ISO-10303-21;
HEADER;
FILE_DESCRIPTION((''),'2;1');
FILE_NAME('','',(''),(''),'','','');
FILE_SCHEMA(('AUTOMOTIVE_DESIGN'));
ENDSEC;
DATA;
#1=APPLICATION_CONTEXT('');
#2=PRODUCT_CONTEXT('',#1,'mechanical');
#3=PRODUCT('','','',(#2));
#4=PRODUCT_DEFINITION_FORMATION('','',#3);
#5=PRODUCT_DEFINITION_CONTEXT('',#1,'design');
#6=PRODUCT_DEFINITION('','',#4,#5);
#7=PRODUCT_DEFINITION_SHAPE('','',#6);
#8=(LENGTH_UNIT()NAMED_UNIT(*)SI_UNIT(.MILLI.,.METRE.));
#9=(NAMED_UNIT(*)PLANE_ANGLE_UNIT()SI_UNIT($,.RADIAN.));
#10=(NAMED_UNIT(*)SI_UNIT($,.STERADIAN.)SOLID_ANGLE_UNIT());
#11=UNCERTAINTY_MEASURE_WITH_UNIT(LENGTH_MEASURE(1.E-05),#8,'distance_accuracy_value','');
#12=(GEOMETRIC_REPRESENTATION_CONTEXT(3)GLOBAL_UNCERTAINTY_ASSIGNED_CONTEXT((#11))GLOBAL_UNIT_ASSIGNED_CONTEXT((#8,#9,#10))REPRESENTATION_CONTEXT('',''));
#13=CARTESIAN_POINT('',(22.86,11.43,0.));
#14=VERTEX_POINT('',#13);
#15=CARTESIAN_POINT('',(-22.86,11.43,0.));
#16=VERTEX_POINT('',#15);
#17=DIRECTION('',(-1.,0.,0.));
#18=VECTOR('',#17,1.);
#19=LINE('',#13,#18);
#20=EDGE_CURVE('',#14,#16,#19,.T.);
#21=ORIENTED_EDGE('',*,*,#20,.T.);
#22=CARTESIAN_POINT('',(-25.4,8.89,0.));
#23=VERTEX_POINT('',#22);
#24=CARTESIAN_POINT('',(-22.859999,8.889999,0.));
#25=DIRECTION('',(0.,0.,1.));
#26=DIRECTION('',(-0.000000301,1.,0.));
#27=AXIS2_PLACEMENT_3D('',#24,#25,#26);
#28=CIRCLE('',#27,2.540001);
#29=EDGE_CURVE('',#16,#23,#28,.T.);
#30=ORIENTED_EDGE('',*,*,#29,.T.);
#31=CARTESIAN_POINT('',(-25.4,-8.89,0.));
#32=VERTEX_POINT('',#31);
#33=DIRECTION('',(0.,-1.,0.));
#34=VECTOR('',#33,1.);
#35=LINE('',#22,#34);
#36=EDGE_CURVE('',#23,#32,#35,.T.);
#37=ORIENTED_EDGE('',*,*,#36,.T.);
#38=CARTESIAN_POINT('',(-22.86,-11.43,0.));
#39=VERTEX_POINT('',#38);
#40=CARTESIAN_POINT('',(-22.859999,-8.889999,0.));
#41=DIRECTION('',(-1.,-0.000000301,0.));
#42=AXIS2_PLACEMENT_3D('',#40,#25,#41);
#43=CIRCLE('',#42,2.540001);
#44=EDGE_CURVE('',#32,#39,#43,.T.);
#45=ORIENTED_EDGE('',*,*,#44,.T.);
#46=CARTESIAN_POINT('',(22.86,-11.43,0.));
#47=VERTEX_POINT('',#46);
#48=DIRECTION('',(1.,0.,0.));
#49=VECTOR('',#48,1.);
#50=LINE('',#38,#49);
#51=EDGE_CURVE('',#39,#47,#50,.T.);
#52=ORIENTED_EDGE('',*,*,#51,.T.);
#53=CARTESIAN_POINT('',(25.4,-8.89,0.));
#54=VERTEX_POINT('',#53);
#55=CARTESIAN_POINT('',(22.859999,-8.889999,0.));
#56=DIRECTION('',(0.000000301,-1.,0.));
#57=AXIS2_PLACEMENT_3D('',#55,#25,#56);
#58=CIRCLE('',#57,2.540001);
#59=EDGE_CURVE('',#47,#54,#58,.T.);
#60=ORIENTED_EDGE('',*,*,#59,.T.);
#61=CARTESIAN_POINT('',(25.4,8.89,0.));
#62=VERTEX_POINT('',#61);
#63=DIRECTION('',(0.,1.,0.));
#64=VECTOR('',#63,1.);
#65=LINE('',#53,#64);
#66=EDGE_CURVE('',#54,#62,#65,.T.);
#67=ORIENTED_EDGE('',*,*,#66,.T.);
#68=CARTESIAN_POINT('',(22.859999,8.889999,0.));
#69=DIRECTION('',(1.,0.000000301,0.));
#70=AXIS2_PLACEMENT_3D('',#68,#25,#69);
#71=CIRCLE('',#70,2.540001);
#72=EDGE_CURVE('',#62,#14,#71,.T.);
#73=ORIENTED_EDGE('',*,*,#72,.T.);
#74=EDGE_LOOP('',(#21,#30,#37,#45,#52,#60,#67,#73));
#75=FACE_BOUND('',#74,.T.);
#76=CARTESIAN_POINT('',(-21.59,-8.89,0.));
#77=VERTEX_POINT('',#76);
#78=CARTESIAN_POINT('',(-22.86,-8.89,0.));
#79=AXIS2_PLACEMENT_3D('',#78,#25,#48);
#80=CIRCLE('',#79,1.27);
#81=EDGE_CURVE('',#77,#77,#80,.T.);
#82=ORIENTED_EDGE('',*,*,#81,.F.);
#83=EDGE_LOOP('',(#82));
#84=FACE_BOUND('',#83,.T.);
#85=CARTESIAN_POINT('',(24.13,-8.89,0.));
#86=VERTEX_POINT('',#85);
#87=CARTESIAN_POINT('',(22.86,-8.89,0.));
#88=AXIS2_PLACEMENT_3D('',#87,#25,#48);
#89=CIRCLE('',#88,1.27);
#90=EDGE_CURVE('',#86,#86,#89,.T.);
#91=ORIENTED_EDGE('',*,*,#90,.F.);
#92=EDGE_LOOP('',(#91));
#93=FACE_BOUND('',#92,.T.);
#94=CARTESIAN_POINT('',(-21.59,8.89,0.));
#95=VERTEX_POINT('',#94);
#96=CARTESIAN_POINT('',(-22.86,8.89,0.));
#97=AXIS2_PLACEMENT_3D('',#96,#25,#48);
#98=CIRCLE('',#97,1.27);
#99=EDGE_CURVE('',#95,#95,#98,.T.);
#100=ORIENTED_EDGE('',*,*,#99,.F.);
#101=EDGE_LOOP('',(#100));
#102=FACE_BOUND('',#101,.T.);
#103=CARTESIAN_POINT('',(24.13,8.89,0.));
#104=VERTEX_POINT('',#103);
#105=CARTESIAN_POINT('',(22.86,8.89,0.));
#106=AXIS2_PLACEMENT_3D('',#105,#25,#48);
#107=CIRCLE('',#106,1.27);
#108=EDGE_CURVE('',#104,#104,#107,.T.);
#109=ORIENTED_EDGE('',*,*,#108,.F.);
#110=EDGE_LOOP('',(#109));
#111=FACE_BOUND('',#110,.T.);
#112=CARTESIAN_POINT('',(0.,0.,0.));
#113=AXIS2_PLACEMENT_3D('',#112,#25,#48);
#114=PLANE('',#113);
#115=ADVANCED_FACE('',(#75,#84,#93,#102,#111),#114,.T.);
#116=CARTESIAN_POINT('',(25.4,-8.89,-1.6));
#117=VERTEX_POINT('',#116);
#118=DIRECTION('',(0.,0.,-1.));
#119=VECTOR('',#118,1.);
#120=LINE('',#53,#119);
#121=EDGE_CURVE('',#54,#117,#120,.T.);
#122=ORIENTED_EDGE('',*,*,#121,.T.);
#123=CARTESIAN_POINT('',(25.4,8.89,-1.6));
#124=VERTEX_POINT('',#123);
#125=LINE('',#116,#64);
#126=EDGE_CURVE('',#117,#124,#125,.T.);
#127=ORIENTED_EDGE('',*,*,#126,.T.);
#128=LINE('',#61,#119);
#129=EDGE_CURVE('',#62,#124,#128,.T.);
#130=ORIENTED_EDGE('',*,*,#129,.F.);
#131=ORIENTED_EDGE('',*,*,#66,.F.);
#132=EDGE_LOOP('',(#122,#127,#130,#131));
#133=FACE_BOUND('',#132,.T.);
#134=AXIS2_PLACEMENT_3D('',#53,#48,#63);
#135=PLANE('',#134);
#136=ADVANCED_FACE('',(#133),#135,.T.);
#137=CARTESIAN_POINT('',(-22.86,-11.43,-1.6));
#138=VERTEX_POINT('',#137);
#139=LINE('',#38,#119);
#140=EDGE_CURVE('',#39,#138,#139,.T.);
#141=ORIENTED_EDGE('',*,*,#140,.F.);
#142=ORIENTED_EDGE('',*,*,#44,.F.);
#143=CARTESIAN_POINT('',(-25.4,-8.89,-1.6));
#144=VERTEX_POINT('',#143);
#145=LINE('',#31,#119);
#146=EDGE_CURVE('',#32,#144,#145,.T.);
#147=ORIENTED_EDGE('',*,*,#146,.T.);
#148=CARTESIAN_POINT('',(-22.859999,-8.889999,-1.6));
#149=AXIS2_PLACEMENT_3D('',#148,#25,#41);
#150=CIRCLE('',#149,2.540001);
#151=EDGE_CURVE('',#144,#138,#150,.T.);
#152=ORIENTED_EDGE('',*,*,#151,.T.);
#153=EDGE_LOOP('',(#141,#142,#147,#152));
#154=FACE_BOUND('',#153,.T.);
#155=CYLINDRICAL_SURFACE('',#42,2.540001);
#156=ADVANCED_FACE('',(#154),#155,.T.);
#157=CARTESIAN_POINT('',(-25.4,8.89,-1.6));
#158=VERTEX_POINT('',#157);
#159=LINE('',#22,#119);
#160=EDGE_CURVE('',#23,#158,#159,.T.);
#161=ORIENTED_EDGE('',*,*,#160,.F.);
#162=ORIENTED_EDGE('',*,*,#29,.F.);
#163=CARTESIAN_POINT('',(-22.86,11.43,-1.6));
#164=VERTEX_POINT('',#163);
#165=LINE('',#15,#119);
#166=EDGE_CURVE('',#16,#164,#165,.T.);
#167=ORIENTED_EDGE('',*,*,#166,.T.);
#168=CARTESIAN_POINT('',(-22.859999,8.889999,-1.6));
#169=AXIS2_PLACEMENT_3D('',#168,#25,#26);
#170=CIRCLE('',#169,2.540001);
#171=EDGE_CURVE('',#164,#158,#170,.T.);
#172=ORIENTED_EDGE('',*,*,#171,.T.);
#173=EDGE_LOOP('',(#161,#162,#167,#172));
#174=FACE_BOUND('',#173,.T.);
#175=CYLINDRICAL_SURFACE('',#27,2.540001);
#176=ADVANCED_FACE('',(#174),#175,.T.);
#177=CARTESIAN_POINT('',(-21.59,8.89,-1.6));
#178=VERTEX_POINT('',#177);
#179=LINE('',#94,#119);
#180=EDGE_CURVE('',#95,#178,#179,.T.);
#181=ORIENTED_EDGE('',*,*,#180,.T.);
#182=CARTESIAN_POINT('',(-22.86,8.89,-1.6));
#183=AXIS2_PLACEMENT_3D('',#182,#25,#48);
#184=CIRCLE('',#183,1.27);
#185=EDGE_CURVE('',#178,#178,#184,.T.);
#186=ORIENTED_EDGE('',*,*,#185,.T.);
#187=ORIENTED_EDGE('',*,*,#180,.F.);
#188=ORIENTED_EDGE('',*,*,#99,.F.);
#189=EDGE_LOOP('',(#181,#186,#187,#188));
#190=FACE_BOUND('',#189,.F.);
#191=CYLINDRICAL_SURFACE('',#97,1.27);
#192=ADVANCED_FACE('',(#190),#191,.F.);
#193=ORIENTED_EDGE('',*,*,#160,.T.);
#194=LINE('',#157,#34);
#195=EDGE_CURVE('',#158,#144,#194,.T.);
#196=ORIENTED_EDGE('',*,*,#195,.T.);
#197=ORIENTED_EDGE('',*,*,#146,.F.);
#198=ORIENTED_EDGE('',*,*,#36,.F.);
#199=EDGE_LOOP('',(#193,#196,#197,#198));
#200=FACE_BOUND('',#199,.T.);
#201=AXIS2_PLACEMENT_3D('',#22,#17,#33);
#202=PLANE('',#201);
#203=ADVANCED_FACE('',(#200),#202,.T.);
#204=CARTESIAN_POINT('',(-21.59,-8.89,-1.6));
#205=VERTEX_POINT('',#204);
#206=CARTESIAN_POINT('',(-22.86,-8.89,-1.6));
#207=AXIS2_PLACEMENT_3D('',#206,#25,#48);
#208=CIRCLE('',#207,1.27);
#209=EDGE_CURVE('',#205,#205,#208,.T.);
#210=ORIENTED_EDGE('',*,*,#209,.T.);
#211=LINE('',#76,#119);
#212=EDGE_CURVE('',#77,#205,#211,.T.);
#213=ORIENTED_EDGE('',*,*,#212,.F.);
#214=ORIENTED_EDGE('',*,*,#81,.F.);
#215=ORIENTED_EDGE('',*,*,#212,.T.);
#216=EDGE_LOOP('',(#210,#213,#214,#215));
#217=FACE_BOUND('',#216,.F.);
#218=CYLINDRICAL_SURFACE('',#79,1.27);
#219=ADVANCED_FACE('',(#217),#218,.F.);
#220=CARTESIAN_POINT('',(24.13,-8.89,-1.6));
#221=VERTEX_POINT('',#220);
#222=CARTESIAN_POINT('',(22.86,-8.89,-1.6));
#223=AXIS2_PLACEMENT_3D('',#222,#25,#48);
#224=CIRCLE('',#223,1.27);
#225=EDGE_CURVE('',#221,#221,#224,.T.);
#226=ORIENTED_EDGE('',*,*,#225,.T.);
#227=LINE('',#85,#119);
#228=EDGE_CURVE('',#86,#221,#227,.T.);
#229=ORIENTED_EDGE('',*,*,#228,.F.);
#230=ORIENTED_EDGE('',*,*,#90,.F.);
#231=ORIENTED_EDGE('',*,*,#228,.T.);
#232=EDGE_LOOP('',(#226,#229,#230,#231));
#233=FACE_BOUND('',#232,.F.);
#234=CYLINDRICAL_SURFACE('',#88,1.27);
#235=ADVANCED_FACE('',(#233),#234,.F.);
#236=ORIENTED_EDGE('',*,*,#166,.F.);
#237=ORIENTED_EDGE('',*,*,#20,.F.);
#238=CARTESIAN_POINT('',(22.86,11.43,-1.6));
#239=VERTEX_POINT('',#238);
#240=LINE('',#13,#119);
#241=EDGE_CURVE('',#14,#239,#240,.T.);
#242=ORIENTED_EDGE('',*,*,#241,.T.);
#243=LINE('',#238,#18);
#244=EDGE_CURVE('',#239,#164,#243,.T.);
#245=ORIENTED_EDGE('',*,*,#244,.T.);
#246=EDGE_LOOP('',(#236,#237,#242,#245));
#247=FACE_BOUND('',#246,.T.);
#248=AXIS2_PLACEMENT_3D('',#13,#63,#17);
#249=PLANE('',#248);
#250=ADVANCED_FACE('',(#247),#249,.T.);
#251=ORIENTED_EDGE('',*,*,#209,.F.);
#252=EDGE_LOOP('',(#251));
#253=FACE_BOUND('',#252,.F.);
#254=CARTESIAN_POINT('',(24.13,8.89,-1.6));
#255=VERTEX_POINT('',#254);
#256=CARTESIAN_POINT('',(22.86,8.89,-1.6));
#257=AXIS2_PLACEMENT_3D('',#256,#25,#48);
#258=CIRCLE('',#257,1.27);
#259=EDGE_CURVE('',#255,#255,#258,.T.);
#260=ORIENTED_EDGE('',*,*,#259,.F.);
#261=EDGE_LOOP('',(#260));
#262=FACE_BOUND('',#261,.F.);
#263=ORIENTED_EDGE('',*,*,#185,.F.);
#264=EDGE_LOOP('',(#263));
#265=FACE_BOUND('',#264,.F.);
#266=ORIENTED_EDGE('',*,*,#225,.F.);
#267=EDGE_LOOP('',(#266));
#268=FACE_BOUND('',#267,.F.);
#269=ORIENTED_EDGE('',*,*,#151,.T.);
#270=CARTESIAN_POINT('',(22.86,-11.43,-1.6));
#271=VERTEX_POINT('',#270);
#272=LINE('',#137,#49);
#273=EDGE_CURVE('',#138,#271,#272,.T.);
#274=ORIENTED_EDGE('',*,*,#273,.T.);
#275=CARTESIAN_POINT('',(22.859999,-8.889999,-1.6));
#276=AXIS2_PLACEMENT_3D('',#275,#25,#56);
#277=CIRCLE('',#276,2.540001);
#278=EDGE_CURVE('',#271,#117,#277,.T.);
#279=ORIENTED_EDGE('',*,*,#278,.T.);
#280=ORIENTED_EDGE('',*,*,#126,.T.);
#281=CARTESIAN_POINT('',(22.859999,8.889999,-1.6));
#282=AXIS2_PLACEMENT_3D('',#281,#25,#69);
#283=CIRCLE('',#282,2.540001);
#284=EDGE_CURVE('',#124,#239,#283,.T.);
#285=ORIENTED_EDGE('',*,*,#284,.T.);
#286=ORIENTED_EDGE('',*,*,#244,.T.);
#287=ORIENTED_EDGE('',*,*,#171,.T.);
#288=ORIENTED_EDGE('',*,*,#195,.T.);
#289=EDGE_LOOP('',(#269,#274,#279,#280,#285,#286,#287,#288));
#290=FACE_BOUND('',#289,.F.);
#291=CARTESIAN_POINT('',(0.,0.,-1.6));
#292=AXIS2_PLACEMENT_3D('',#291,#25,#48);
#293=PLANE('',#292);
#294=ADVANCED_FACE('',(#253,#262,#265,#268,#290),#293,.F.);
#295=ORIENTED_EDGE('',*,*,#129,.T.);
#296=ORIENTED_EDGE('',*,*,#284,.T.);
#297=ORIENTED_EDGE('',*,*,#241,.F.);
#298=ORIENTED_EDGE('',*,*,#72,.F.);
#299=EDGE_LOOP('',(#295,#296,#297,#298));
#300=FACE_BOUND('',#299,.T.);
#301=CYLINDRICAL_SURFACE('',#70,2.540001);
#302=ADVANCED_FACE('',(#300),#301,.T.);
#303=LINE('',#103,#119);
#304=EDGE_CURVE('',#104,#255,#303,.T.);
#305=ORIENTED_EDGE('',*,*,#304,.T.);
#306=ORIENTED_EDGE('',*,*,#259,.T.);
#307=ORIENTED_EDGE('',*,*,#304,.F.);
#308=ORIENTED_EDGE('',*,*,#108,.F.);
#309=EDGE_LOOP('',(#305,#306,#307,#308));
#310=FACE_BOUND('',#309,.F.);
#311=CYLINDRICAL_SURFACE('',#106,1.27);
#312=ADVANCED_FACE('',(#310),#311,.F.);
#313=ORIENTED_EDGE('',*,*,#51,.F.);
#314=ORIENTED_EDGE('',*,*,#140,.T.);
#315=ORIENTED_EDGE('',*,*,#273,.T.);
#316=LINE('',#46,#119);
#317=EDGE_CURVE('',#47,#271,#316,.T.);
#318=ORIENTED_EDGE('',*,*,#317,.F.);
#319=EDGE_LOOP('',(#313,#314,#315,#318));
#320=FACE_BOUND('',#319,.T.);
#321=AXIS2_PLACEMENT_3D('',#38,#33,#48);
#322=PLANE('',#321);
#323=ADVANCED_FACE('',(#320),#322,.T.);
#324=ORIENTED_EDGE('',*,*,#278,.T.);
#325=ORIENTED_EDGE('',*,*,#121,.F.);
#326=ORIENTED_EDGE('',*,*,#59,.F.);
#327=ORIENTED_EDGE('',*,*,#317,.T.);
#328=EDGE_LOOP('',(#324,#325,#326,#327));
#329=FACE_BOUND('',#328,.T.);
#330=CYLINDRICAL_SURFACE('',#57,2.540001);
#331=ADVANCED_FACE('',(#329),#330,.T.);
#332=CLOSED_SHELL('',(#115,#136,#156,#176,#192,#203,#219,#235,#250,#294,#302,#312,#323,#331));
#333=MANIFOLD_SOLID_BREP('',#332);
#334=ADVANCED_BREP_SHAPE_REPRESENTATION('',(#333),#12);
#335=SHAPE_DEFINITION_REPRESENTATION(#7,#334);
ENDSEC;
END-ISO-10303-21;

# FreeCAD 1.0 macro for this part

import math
import FreeCAD as App
import Part
import Sketcher
Q = App.Units.Quantity

doc = App.newDocument("Part")
params = doc.addObject("Spreadsheet::Sheet", "Params")
for row, (alias, value) in enumerate([
    ("sketch1_diameter", "0.1 in"),
    ("sketch1_radius", "0.1 in"),
    ("sketch1_width", "1.8 in"),
    ("sketch1_height", "0.7 in"),
    ("pad1_length", "1.6 mm"),
], start=1):
    params.set(f"A{row}", alias)
    params.set(f"B{row}", "=" + value)
    params.setAlias(f"B{row}", alias)

body = doc.addObject("PartDesign::Body", "Body")

# Sketch on XY plane
sketch1 = body.newObject("Sketcher::SketchObject", "Sketch")
sketch1.AttachmentSupport = (doc.getObject("XY_Plane"), [""])
sketch1.MapMode = "FlatFace"
sketch1.addGeometry(Part.LineSegment(App.Vector(22.9, 11.4, 0), App.Vector(-22.9, 11.4, 0)), False)
sketch1.addGeometry(Part.ArcOfCircle(Part.Circle(App.Vector(-22.9, 8.9, 0), App.Vector(0, 0, 1), 2.5), math.radians(90), math.radians(180)), False)
sketch1.addGeometry(Part.LineSegment(App.Vector(-25.4, 8.9, 0), App.Vector(-25.4, -8.9, 0)), False)
sketch1.addGeometry(Part.ArcOfCircle(Part.Circle(App.Vector(-22.9, -8.9, 0), App.Vector(0, 0, 1), 2.5), math.radians(-180), math.radians(-90)), False)
sketch1.addGeometry(Part.LineSegment(App.Vector(-22.9, -11.4, 0), App.Vector(22.9, -11.4, 0)), False)
sketch1.addGeometry(Part.ArcOfCircle(Part.Circle(App.Vector(22.9, -8.9, 0), App.Vector(0, 0, 1), 2.5), math.radians(-90), math.radians(0)), False)
sketch1.addGeometry(Part.LineSegment(App.Vector(25.4, -8.9, 0), App.Vector(25.4, 8.9, 0)), False)
sketch1.addGeometry(Part.ArcOfCircle(Part.Circle(App.Vector(22.9, 8.9, 0), App.Vector(0, 0, 1), 2.5), math.radians(0), math.radians(90)), False)
sketch1.addGeometry(Part.Circle(App.Vector(-22.9, -8.9, 0), App.Vector(0, 0, 1), 1.3), False)
sketch1.addGeometry(Part.Circle(App.Vector(22.9, -8.9, 0), App.Vector(0, 0, 1), 1.3), False)
sketch1.addGeometry(Part.Circle(App.Vector(-22.9, 8.9, 0), App.Vector(0, 0, 1), 1.3), False)
sketch1.addGeometry(Part.Circle(App.Vector(22.9, 8.9, 0), App.Vector(0, 0, 1), 1.3), False)
sketch1.addConstraint(Sketcher.Constraint("Tangent", 0, 2, 1, 1))
sketch1.addConstraint(Sketcher.Constraint("Tangent", 1, 2, 2, 1))
sketch1.addConstraint(Sketcher.Constraint("Tangent", 2, 2, 3, 1))
sketch1.addConstraint(Sketcher.Constraint("Tangent", 3, 2, 4, 1))
sketch1.addConstraint(Sketcher.Constraint("Tangent", 4, 2, 5, 1))
sketch1.addConstraint(Sketcher.Constraint("Tangent", 5, 2, 6, 1))
sketch1.addConstraint(Sketcher.Constraint("Tangent", 6, 2, 7, 1))
sketch1.addConstraint(Sketcher.Constraint("Tangent", 7, 2, 0, 1))
sketch1.addConstraint(Sketcher.Constraint("Horizontal", 0))
sketch1.addConstraint(Sketcher.Constraint("Vertical", 2))
sketch1.addConstraint(Sketcher.Constraint("Horizontal", 4))
sketch1.addConstraint(Sketcher.Constraint("Vertical", 6))
sketch1.addConstraint(Sketcher.Constraint("Coincident", 8, 3, 3, 3))
sketch1.addConstraint(Sketcher.Constraint("Coincident", 9, 3, 5, 3))
sketch1.addConstraint(Sketcher.Constraint("Coincident", 10, 3, 1, 3))
sketch1.addConstraint(Sketcher.Constraint("Coincident", 11, 3, 7, 3))
sketch1.addConstraint(Sketcher.Constraint("Equal", 1, 3))
sketch1.addConstraint(Sketcher.Constraint("Equal", 3, 5))
sketch1.addConstraint(Sketcher.Constraint("Equal", 5, 7))
sketch1.addConstraint(Sketcher.Constraint("Equal", 8, 9))
sketch1.addConstraint(Sketcher.Constraint("Equal", 9, 10))
sketch1.addConstraint(Sketcher.Constraint("Equal", 10, 11))
sketch1.addConstraint(Sketcher.Constraint("Symmetric", 1, 3, 5, 3, -1, 1))
sketch1.addConstraint(Sketcher.Constraint("Diameter", 8, Q("0.1 in")))
sketch1.addConstraint(Sketcher.Constraint("Radius", 1, Q("0.1 in")))
sketch1.addConstraint(Sketcher.Constraint("DistanceX", 0, 2, 0, 1, Q("1.8 in")))
sketch1.addConstraint(Sketcher.Constraint("DistanceY", 2, 2, 2, 1, Q("0.7 in")))
sketch1.setExpression("Constraints[23]", "Params.sketch1_diameter")
sketch1.setExpression("Constraints[24]", "Params.sketch1_radius")
sketch1.setExpression("Constraints[25]", "Params.sketch1_width")
sketch1.setExpression("Constraints[26]", "Params.sketch1_height")
pad1 = body.newObject("PartDesign::Pad", "Pad")
pad1.Profile = sketch1
pad1.setExpression("Length", "Params.pad1_length")
pad1.Reversed = True

doc.recompute()
